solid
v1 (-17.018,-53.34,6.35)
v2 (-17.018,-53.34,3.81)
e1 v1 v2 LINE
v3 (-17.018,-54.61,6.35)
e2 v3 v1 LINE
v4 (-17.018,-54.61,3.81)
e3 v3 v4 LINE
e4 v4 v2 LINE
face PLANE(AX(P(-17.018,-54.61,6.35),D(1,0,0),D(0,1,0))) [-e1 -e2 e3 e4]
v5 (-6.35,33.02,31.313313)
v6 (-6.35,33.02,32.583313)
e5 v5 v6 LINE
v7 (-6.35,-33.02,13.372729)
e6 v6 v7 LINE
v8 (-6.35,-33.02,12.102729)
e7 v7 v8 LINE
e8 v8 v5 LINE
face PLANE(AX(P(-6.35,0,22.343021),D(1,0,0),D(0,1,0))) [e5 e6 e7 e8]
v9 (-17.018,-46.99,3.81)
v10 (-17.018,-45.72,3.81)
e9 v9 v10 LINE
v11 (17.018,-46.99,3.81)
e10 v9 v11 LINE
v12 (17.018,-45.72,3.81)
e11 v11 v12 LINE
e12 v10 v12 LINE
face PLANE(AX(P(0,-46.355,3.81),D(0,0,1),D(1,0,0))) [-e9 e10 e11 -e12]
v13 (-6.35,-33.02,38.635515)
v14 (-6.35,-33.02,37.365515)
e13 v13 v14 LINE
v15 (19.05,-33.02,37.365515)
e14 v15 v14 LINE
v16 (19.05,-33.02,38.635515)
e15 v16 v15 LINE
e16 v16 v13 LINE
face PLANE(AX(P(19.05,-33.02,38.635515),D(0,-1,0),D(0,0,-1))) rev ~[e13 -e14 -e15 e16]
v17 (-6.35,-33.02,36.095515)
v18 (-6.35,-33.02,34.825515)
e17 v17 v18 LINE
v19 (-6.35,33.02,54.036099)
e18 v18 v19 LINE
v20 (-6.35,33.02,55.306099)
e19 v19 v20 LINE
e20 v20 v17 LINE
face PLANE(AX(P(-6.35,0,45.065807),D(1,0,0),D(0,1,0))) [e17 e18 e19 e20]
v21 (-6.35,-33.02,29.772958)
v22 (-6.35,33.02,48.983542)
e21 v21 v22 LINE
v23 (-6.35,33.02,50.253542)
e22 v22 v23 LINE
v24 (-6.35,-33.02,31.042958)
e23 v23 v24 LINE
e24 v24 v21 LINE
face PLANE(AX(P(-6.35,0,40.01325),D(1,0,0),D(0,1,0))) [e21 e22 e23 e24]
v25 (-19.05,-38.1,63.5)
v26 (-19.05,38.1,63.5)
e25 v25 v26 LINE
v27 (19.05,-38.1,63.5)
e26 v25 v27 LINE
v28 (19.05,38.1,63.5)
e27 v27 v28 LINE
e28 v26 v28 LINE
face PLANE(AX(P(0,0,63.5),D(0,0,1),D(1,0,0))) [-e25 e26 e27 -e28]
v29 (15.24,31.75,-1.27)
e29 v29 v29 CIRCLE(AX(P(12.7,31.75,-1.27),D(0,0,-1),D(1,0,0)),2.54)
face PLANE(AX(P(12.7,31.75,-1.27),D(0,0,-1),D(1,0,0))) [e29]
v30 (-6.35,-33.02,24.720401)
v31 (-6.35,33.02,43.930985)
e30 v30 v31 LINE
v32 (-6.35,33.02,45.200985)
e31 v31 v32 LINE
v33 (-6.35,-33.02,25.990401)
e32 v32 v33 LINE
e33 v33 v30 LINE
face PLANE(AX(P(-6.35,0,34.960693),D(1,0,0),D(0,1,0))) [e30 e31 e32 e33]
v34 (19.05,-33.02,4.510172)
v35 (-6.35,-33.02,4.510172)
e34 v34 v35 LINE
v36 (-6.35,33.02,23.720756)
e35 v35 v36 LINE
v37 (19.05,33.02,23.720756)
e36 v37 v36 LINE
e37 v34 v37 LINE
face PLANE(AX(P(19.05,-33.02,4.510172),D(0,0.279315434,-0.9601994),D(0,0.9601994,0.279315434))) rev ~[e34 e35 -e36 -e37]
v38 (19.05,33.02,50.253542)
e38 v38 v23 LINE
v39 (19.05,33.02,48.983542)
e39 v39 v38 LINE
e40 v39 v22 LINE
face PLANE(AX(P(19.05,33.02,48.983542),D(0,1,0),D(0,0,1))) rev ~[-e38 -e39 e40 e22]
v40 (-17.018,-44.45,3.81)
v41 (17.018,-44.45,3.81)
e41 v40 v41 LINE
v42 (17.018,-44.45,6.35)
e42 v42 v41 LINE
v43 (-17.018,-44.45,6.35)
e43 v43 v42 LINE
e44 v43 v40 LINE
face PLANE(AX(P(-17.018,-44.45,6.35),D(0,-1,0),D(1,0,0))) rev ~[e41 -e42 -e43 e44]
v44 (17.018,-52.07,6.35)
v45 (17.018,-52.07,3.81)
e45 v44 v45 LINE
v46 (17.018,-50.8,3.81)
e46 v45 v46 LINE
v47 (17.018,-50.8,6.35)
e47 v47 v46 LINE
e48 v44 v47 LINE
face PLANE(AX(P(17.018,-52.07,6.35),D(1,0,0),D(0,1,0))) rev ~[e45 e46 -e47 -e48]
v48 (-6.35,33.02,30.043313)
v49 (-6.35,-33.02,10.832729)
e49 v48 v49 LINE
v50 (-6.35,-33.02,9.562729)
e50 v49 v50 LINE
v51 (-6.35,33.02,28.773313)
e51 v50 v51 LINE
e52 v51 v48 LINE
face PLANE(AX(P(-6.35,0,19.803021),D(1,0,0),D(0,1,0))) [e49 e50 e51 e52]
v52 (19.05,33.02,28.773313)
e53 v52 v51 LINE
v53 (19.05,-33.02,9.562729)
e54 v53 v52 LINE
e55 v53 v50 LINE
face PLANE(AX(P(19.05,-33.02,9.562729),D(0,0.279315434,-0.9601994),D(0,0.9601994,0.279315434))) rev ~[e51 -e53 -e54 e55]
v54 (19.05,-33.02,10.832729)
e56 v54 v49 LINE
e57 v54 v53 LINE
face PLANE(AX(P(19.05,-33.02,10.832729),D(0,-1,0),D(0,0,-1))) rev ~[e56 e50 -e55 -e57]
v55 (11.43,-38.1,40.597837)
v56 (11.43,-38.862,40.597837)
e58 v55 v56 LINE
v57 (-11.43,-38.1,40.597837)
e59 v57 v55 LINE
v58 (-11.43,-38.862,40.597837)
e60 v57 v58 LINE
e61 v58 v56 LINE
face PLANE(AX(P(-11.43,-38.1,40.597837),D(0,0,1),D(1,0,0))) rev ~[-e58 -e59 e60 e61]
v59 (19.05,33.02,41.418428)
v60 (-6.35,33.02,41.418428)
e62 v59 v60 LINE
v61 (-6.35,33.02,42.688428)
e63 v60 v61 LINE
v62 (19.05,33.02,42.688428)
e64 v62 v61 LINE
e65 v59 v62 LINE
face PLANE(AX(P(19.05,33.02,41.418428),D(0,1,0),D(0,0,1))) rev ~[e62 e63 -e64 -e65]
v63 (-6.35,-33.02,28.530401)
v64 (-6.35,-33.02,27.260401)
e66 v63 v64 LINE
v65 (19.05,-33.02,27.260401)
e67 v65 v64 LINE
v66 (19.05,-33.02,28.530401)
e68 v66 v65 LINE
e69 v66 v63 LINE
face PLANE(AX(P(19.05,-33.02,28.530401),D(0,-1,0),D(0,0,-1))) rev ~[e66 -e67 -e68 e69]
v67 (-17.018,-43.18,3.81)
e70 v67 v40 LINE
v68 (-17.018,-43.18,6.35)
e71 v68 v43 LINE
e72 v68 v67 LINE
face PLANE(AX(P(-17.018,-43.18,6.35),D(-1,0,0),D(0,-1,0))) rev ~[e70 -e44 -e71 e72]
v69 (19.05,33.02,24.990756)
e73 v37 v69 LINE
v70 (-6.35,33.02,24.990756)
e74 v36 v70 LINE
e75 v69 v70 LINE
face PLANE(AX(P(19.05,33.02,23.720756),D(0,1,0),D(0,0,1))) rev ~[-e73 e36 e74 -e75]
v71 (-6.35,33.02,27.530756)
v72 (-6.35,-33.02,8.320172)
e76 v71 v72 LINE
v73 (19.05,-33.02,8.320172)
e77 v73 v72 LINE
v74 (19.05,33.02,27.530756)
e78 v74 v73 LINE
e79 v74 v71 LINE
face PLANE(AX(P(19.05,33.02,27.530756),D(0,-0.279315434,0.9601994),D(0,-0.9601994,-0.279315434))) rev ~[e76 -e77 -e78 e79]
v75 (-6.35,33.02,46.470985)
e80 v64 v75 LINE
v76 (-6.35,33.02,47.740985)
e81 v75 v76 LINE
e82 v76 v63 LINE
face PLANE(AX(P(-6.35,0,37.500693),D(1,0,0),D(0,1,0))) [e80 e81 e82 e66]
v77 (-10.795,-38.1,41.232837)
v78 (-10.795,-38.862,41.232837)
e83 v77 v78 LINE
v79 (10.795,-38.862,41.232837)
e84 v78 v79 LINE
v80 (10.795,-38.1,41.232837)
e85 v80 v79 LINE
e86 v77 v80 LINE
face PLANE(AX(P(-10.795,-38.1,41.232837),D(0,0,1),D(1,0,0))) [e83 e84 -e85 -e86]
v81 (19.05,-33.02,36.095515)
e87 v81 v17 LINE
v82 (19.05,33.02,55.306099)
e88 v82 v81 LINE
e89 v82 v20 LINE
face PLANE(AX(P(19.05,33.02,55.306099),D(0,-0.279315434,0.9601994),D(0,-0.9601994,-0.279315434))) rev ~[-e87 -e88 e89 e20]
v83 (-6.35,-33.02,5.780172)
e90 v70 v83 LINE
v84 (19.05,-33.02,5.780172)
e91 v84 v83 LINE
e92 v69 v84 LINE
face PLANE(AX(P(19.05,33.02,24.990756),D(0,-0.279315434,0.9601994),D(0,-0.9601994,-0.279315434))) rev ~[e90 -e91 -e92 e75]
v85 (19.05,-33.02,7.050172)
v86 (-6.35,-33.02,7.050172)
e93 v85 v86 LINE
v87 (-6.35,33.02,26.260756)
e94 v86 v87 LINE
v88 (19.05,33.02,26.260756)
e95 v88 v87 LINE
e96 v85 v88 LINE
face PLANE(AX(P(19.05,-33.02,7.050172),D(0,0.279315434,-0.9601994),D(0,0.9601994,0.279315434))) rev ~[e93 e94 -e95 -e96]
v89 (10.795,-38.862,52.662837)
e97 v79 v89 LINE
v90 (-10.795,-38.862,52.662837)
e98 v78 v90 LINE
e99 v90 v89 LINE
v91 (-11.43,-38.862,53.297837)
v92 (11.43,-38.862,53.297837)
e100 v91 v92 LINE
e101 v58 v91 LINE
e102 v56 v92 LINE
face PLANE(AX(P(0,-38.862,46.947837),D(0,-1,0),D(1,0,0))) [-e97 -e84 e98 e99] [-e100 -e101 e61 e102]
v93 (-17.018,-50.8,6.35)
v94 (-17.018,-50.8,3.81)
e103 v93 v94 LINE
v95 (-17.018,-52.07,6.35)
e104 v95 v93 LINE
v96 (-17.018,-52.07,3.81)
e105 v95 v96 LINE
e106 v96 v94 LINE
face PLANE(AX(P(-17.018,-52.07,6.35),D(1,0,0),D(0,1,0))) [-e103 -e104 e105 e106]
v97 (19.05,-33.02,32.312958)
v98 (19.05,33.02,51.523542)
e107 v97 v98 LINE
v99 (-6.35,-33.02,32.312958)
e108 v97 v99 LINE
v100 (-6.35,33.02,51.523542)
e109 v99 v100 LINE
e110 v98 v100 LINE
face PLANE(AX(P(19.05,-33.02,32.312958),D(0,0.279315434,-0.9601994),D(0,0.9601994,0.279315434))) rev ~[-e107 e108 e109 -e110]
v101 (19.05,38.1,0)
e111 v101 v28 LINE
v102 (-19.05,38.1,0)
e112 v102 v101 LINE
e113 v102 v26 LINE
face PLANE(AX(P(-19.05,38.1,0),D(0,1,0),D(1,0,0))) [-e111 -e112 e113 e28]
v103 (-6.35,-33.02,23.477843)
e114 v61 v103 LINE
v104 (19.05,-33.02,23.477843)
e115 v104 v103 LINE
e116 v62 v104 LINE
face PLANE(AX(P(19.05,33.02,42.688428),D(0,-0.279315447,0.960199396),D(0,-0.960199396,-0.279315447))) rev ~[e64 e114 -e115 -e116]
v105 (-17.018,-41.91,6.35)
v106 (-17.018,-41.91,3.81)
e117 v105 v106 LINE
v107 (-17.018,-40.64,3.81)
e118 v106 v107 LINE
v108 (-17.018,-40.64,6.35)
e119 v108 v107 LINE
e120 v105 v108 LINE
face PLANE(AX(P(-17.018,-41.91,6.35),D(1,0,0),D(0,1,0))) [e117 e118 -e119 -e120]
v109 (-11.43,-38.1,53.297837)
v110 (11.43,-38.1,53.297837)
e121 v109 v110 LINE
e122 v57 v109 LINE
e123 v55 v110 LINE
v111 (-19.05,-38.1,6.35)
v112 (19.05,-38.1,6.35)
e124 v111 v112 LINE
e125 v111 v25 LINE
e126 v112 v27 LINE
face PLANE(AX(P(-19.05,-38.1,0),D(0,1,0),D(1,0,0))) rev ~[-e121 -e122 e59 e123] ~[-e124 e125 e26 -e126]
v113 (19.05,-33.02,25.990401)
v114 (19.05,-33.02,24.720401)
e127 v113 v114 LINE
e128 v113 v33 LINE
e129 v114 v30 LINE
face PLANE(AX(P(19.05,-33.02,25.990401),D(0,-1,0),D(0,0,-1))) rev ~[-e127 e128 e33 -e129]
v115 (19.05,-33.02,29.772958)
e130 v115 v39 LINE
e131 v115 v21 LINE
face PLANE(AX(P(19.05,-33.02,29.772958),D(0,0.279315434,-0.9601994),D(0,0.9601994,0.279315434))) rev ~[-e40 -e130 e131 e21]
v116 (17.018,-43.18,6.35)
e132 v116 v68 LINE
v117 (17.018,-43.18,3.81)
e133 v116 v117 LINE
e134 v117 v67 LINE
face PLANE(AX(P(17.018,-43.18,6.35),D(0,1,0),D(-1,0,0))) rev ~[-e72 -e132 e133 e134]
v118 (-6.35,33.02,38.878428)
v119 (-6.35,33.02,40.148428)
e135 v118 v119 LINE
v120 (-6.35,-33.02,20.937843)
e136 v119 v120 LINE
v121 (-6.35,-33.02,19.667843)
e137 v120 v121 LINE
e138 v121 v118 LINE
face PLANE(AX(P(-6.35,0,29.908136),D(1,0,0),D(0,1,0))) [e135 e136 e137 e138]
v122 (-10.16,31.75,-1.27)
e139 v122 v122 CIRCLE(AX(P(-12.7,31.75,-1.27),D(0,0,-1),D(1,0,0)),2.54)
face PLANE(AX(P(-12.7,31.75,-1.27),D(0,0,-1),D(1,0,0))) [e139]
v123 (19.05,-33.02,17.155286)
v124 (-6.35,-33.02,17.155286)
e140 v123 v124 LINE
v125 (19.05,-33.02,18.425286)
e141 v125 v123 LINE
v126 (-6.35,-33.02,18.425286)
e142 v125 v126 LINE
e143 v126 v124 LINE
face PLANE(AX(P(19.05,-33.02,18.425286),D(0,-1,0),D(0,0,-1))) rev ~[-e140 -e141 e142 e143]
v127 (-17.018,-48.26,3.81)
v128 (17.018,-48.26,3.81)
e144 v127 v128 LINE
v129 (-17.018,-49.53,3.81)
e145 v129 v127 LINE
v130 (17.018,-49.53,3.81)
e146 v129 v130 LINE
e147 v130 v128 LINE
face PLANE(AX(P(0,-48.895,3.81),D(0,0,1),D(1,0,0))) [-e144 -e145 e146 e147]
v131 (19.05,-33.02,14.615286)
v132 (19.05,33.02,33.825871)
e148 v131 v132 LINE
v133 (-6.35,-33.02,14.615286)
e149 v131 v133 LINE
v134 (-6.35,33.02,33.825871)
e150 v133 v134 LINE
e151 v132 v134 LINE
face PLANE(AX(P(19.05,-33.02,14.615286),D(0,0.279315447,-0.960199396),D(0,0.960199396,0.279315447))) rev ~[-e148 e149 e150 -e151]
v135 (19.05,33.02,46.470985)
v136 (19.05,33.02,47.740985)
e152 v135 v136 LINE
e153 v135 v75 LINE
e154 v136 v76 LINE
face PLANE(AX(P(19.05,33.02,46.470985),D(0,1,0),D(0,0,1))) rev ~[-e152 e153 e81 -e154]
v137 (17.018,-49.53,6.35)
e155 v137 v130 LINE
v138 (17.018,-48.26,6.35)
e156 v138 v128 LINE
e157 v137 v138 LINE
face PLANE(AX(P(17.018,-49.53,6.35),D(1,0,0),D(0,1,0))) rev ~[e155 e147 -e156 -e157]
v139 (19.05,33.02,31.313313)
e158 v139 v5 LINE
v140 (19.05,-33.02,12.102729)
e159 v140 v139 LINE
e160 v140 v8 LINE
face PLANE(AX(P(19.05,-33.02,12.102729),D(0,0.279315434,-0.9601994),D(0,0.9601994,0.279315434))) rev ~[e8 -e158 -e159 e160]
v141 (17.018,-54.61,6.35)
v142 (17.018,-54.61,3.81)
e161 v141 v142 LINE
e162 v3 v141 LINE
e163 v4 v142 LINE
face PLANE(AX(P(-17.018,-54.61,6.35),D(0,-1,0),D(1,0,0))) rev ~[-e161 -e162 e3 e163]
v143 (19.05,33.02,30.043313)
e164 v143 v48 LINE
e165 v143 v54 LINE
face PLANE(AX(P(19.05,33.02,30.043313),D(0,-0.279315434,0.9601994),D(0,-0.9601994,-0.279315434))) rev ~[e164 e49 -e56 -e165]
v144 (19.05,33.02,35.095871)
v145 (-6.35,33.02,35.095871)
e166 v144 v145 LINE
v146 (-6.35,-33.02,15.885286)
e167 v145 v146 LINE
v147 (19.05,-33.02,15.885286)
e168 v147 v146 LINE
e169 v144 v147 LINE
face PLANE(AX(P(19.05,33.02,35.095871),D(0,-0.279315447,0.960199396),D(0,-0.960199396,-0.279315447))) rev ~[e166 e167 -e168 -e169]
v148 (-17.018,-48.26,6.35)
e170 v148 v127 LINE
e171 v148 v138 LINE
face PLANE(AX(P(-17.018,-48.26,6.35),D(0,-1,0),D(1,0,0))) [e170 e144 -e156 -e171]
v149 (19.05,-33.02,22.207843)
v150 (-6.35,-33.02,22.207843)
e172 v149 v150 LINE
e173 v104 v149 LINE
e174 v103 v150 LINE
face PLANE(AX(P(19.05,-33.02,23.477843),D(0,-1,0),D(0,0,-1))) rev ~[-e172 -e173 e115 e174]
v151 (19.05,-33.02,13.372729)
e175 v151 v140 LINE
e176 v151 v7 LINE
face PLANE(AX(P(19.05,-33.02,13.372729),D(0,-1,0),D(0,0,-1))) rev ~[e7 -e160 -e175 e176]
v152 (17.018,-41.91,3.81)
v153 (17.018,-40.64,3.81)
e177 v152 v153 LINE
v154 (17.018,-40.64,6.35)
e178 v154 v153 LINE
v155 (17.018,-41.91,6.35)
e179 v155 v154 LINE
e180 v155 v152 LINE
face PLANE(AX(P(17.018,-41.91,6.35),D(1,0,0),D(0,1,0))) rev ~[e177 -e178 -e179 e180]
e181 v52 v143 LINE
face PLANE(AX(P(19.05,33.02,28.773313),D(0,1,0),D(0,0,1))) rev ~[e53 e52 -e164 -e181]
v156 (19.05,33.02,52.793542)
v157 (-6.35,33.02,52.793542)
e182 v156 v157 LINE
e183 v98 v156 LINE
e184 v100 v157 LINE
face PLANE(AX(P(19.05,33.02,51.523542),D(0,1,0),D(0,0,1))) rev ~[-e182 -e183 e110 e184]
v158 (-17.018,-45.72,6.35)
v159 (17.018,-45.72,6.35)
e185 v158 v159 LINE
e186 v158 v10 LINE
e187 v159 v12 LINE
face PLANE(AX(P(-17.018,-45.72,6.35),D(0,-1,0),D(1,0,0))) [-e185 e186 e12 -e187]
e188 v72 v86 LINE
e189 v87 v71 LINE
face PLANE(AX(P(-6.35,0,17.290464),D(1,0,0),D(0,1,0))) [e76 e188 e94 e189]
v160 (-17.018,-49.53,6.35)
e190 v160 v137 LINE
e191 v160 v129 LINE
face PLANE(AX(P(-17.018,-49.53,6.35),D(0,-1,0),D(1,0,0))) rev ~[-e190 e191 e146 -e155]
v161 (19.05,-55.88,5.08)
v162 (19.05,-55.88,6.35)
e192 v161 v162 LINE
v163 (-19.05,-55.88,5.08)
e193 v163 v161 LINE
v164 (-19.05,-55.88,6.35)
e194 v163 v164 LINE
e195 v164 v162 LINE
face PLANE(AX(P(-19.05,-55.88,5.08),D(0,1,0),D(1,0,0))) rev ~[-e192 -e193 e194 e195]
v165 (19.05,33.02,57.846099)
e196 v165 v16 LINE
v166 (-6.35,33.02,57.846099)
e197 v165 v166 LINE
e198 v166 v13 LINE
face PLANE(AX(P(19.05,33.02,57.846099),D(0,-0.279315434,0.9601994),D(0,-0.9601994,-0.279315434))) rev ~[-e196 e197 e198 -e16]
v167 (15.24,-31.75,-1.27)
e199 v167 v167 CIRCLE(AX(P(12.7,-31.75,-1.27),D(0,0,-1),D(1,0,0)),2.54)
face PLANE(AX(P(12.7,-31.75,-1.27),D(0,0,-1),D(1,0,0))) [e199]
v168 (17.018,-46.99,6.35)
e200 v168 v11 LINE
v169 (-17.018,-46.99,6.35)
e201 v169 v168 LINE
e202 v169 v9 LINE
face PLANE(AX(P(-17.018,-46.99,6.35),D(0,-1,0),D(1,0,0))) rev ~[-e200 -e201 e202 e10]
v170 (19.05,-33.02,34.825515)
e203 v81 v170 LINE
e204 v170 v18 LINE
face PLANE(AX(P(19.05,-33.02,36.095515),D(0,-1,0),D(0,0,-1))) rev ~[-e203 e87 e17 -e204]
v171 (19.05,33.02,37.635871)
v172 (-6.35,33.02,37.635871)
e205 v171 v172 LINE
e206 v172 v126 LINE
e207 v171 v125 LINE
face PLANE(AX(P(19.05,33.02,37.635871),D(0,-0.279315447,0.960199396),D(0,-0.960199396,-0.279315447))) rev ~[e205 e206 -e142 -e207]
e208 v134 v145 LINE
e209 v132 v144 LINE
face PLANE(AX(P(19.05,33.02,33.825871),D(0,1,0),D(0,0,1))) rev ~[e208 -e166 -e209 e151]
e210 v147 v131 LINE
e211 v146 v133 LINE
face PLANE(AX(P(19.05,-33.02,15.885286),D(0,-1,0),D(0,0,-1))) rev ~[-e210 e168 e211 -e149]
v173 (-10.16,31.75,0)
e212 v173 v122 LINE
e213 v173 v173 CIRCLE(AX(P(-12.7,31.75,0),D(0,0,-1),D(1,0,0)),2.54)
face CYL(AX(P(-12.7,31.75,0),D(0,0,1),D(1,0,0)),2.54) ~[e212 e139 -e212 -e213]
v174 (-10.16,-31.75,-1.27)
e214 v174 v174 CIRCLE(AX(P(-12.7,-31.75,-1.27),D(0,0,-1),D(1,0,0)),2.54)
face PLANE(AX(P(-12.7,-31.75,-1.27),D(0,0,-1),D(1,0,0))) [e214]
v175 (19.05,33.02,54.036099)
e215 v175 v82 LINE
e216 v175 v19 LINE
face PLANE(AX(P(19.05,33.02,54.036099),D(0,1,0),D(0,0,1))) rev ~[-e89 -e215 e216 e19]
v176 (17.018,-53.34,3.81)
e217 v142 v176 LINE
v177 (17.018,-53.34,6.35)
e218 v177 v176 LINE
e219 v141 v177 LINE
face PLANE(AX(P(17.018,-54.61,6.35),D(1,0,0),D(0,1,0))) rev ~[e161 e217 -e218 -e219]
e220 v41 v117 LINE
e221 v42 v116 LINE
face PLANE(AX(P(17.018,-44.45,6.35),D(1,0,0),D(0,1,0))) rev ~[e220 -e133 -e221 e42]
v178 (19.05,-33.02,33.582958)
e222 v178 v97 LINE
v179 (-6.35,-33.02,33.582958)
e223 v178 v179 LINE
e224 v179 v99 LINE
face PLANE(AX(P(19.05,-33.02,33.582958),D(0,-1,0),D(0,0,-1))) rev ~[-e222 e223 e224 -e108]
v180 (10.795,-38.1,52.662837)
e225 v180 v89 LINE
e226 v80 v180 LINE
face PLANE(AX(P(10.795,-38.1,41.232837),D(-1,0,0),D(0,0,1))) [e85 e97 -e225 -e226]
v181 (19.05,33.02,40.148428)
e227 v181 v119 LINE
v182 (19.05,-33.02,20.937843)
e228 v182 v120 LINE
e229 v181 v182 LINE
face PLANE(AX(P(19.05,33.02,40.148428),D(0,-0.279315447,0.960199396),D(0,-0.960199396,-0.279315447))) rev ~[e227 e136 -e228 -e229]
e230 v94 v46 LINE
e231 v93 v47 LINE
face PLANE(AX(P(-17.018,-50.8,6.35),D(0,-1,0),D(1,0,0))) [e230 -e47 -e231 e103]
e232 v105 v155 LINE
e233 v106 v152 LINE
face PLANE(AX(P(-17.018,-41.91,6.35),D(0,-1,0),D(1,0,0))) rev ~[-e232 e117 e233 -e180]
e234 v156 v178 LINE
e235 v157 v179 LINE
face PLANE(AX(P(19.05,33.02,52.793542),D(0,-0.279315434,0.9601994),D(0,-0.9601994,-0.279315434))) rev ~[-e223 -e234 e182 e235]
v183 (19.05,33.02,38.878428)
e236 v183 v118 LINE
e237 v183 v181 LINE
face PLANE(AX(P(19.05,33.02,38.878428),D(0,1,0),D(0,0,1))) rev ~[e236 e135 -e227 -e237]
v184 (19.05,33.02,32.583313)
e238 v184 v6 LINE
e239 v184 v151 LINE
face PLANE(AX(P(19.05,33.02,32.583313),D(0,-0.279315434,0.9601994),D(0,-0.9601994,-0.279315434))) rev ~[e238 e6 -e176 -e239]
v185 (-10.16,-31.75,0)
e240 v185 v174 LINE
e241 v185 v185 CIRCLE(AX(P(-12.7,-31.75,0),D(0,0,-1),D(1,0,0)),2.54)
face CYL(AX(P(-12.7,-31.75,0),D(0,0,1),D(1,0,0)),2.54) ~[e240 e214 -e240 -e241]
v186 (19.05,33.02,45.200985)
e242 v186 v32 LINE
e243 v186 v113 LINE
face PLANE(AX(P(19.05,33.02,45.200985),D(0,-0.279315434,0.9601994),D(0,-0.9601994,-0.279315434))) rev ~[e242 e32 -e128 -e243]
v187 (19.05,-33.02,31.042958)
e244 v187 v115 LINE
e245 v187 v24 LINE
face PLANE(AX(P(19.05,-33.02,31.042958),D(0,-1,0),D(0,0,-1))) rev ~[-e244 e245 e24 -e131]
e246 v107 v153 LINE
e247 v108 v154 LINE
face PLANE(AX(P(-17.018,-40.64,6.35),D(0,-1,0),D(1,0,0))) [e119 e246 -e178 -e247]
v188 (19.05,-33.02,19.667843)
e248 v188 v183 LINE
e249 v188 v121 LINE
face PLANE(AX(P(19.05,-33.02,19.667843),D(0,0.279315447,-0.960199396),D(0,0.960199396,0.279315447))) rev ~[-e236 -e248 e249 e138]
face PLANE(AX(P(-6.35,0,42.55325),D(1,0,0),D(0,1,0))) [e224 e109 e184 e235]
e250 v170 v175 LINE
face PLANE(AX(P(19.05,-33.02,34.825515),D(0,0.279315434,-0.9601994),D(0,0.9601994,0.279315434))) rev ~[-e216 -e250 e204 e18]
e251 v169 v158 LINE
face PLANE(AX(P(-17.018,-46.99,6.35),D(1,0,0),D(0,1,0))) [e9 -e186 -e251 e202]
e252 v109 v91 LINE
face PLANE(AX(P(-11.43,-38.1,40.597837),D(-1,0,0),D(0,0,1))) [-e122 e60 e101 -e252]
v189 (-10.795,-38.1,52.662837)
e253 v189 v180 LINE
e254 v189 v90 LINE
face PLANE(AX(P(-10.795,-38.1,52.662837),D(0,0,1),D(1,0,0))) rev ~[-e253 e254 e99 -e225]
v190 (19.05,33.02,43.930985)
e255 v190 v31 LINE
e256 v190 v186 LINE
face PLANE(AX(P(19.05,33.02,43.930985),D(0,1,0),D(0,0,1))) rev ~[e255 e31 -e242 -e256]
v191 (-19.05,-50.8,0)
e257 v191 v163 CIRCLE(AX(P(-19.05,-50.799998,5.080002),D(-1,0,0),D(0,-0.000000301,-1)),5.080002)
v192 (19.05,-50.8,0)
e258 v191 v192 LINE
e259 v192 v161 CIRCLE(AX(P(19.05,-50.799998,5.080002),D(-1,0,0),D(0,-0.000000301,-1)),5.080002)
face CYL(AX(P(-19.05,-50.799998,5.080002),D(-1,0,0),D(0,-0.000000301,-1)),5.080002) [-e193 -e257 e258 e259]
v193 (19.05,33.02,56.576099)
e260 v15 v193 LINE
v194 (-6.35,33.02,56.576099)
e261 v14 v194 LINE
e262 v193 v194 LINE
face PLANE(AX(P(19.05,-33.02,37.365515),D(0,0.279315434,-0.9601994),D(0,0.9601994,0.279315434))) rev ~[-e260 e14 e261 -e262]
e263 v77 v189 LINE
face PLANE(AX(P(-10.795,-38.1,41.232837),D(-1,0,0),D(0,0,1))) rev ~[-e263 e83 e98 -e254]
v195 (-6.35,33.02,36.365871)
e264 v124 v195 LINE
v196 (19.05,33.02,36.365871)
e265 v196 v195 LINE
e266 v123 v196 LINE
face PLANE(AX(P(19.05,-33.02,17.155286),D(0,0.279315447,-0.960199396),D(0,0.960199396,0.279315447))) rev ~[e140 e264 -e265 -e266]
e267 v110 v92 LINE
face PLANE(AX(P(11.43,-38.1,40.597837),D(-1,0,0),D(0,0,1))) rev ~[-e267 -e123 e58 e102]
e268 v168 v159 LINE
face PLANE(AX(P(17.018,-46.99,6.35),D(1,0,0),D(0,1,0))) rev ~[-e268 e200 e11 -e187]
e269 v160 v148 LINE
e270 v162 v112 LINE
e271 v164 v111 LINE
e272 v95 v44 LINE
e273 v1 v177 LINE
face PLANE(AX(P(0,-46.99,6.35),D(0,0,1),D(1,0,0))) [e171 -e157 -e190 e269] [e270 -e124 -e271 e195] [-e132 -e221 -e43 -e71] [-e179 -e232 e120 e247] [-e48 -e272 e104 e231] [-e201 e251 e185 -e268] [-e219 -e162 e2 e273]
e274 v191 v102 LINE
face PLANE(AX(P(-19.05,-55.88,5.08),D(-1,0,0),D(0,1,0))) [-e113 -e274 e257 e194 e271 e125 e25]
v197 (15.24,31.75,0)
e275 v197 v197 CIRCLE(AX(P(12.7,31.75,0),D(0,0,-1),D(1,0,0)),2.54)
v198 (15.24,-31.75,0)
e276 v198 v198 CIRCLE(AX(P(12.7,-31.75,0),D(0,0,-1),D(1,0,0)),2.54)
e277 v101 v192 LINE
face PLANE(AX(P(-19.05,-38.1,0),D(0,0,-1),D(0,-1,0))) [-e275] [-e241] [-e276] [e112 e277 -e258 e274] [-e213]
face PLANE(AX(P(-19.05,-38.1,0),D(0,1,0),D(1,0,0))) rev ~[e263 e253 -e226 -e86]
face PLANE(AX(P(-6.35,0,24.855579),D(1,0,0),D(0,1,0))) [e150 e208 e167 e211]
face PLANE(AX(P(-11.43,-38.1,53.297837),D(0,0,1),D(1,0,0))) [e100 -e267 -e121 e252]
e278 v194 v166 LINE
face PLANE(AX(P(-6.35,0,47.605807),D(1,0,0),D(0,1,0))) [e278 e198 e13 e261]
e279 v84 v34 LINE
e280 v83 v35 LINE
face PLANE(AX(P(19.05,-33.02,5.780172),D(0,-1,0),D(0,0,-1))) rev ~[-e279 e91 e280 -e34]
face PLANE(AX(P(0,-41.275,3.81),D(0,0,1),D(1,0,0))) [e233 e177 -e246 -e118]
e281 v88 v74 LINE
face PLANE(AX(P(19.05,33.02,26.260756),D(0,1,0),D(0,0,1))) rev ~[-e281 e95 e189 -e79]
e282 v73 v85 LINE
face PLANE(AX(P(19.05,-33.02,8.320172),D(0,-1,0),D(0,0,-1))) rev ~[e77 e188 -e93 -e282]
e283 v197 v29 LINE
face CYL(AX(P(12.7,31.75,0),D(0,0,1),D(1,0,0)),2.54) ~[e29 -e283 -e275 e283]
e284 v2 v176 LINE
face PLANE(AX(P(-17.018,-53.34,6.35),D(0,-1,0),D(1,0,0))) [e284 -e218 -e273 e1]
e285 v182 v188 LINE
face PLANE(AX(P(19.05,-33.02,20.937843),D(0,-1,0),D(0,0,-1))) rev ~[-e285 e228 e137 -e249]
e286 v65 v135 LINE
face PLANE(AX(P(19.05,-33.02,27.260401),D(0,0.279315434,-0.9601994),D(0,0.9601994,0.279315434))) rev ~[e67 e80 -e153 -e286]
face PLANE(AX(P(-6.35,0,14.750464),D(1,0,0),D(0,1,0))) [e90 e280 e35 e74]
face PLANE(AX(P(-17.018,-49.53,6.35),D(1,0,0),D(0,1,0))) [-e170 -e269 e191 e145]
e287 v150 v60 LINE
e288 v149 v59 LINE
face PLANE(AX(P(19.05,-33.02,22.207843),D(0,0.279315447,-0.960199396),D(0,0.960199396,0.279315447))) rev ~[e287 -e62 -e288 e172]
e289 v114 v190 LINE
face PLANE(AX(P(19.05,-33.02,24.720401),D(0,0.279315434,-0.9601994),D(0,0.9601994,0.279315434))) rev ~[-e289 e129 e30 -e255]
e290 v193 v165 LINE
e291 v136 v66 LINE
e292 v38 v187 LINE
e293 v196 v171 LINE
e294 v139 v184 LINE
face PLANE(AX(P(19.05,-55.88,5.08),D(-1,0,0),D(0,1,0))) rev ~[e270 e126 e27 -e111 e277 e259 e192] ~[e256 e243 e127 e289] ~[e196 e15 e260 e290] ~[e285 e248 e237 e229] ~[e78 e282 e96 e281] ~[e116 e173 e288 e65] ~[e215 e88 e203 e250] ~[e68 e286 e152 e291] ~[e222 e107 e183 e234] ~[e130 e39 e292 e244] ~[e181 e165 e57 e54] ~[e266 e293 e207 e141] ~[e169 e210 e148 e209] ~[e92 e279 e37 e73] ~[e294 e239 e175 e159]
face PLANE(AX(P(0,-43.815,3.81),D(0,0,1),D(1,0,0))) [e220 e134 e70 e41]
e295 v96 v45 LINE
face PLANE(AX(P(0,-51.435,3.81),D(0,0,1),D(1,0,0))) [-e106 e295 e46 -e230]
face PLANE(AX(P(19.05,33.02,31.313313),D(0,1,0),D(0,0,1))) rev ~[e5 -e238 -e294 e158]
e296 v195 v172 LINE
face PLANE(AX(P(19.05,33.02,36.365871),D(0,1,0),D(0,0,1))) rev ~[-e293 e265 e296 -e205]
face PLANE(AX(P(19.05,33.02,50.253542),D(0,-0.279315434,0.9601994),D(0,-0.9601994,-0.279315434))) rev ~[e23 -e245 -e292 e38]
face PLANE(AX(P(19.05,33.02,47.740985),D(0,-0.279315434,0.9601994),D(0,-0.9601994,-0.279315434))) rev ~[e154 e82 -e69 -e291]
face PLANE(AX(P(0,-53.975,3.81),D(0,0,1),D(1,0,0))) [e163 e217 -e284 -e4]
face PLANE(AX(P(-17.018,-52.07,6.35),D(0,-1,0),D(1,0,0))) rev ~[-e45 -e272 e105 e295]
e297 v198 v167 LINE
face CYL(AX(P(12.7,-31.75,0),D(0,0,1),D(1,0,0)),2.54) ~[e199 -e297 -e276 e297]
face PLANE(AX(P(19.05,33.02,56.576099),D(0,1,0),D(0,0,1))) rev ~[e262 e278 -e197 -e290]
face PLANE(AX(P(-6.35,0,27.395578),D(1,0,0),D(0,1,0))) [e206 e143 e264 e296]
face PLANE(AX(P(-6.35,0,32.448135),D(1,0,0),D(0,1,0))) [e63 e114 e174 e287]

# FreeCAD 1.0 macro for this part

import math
import FreeCAD as App
import Part
import Sketcher
Q = App.Units.Quantity

doc = App.newDocument("Part")
body = doc.addObject("PartDesign::Body", "Body")

# Sketch on XY plane
sketch1 = body.newObject("Sketcher::SketchObject", "Sketch")
sketch1.AttachmentSupport = (doc.getObject("XY_Plane"), [""])
sketch1.MapMode = "FlatFace"
sketch1.addGeometry([
    Part.LineSegment(App.Vector(-19, 38, 0), App.Vector(-19, -38, 0)),
    Part.LineSegment(App.Vector(-19, -38, 0), App.Vector(19, -38, 0)),
    Part.LineSegment(App.Vector(19, -38, 0), App.Vector(19, 38, 0)),
    Part.LineSegment(App.Vector(19, 38, 0), App.Vector(-19, 38, 0)),
], False)
sketch1.addConstraint([
    Sketcher.Constraint("Coincident", 0, 2, 1, 1),
    Sketcher.Constraint("Coincident", 1, 2, 2, 1),
    Sketcher.Constraint("Coincident", 2, 2, 3, 1),
    Sketcher.Constraint("Coincident", 3, 2, 0, 1),
    Sketcher.Constraint("Vertical", 0),
    Sketcher.Constraint("Horizontal", 1),
    Sketcher.Constraint("Vertical", 2),
    Sketcher.Constraint("Horizontal", 3),
    Sketcher.Constraint("Symmetric", 0, 2, 2, 2, -1, 1),
    Sketcher.Constraint("DistanceY", 0, 2, 0, 1, Q("3 in")),
    Sketcher.Constraint("DistanceX", 1, 1, 1, 2, Q("1.5 in")),
])
pad1 = body.newObject("PartDesign::Pad", "Pad")
pad1.Profile = sketch1
pad1.Length = Q("2.5 in")

# Sketch on XY plane
sketch2 = body.newObject("Sketcher::SketchObject", "Sketch001")
sketch2.AttachmentSupport = (doc.getObject("XY_Plane"), [""])
sketch2.MapMode = "FlatFace"
sketch2.addGeometry([
    Part.Circle(App.Vector(-12.7, -31.8, 0), App.Vector(0, 0, 1), 2.5),
    Part.Circle(App.Vector(12.7, -31.8, 0), App.Vector(0, 0, 1), 2.5),
    Part.Circle(App.Vector(-12.7, 31.8, 0), App.Vector(0, 0, 1), 2.5),
    Part.Circle(App.Vector(12.7, 31.8, 0), App.Vector(0, 0, 1), 2.5),
], False)
sketch2.addConstraint([
    Sketcher.Constraint("Equal", 0, 1),
    Sketcher.Constraint("Equal", 1, 2),
    Sketcher.Constraint("Equal", 2, 3),
    Sketcher.Constraint("Symmetric", 1, 3, 2, 3, -1, 1),
    Sketcher.Constraint("Symmetric", 0, 3, 3, 3, -1, 1),
    Sketcher.Constraint("Symmetric", 0, 3, 1, 3, -2),
    Sketcher.Constraint("Diameter", 0, Q("0.2 in")),
    Sketcher.Constraint("DistanceX", 0, 3, 1, 3, Q("1 in")),
    Sketcher.Constraint("DistanceY", 0, 3, 2, 3, Q("2.5 in")),
])
pad2 = body.newObject("PartDesign::Pad", "Pad001")
pad2.Profile = sketch2
pad2.Length = Q("0.05 in")
pad2.Reversed = True

# Sketch on YZ plane
sketch3 = body.newObject("Sketcher::SketchObject", "Sketch002")
sketch3.AttachmentSupport = (doc.getObject("YZ_Plane"), [""])
sketch3.MapMode = "FlatFace"
sketch3.AttachmentOffset = App.Placement(App.Vector(0, 0, 0.75 * 25.4), App.Rotation())
sketch3.addGeometry([
    Part.LineSegment(App.Vector(33, 57.8, 0), App.Vector(-33, 38.6, 0)),  # 0
    Part.LineSegment(App.Vector(-33, 38.6, 0), App.Vector(-33, 37.4, 0)),  # 1
    Part.LineSegment(App.Vector(-33, 37.4, 0), App.Vector(33, 56.6, 0)),  # 2
    Part.LineSegment(App.Vector(33, 56.6, 0), App.Vector(33, 57.8, 0)),  # 3
    Part.LineSegment(App.Vector(-33, 26, 0), App.Vector(-33, 24.7, 0)),  # 4
    Part.LineSegment(App.Vector(-33, 24.7, 0), App.Vector(33, 43.9, 0)),  # 5
    Part.LineSegment(App.Vector(33, 43.9, 0), App.Vector(33, 45.2, 0)),  # 6
    Part.LineSegment(App.Vector(33, 45.2, 0), App.Vector(-33, 26, 0)),  # 7
    Part.LineSegment(App.Vector(-33, 28.5, 0), App.Vector(-33, 27.3, 0)),  # 8
    Part.LineSegment(App.Vector(-33, 27.3, 0), App.Vector(33, 46.5, 0)),  # 9
    Part.LineSegment(App.Vector(33, 46.5, 0), App.Vector(33, 47.7, 0)),  # 10
    Part.LineSegment(App.Vector(33, 47.7, 0), App.Vector(-33, 28.5, 0)),  # 11
    Part.LineSegment(App.Vector(-33, 31, 0), App.Vector(-33, 29.8, 0)),  # 12
    Part.LineSegment(App.Vector(-33, 29.8, 0), App.Vector(33, 49, 0)),  # 13
    Part.LineSegment(App.Vector(33, 49, 0), App.Vector(33, 50.3, 0)),  # 14
    Part.LineSegment(App.Vector(33, 50.3, 0), App.Vector(-33, 31, 0)),  # 15
    Part.LineSegment(App.Vector(-33, 33.6, 0), App.Vector(-33, 32.3, 0)),  # 16
    Part.LineSegment(App.Vector(-33, 32.3, 0), App.Vector(33, 51.5, 0)),  # 17
    Part.LineSegment(App.Vector(33, 51.5, 0), App.Vector(33, 52.8, 0)),  # 18
    Part.LineSegment(App.Vector(33, 52.8, 0), App.Vector(-33, 33.6, 0)),  # 19
    Part.LineSegment(App.Vector(-33, 36.1, 0), App.Vector(-33, 34.8, 0)),  # 20
    Part.LineSegment(App.Vector(-33, 34.8, 0), App.Vector(33, 54, 0)),  # 21
    Part.LineSegment(App.Vector(33, 54, 0), App.Vector(33, 55.3, 0)),  # 22
    Part.LineSegment(App.Vector(33, 55.3, 0), App.Vector(-33, 36.1, 0)),  # 23
    Part.LineSegment(App.Vector(33, 42.7, 0), App.Vector(-33, 23.5, 0)),  # 24
    Part.LineSegment(App.Vector(-33, 23.5, 0), App.Vector(-33, 22.2, 0)),  # 25
    Part.LineSegment(App.Vector(-33, 22.2, 0), App.Vector(33, 41.4, 0)),  # 26
    Part.LineSegment(App.Vector(33, 41.4, 0), App.Vector(33, 42.7, 0)),  # 27
    Part.LineSegment(App.Vector(-33, 20.9, 0), App.Vector(-33, 19.7, 0)),  # 28
    Part.LineSegment(App.Vector(-33, 19.7, 0), App.Vector(33, 38.9, 0)),  # 29
    Part.LineSegment(App.Vector(33, 38.9, 0), App.Vector(33, 40.1, 0)),  # 30
    Part.LineSegment(App.Vector(33, 40.1, 0), App.Vector(-33, 20.9, 0)),  # 31
    Part.LineSegment(App.Vector(-33, 15.9, 0), App.Vector(-33, 14.6, 0)),  # 32
    Part.LineSegment(App.Vector(-33, 14.6, 0), App.Vector(33, 33.8, 0)),  # 33
    Part.LineSegment(App.Vector(33, 33.8, 0), App.Vector(33, 35.1, 0)),  # 34
    Part.LineSegment(App.Vector(33, 35.1, 0), App.Vector(-33, 15.9, 0)),  # 35
    Part.LineSegment(App.Vector(-33, 18.4, 0), App.Vector(-33, 17.2, 0)),  # 36
    Part.LineSegment(App.Vector(-33, 17.2, 0), App.Vector(33, 36.4, 0)),  # 37
    Part.LineSegment(App.Vector(33, 36.4, 0), App.Vector(33, 37.6, 0)),  # 38
    Part.LineSegment(App.Vector(33, 37.6, 0), App.Vector(-33, 18.4, 0)),  # 39
    Part.LineSegment(App.Vector(-33, 10.8, 0), App.Vector(-33, 9.6, 0)),  # 40
    Part.LineSegment(App.Vector(-33, 9.6, 0), App.Vector(33, 28.8, 0)),  # 41
    Part.LineSegment(App.Vector(33, 28.8, 0), App.Vector(33, 30, 0)),  # 42
    Part.LineSegment(App.Vector(33, 30, 0), App.Vector(-33, 10.8, 0)),  # 43
    Part.LineSegment(App.Vector(-33, 13.4, 0), App.Vector(-33, 12.1, 0)),  # 44
    Part.LineSegment(App.Vector(-33, 12.1, 0), App.Vector(33, 31.3, 0)),  # 45
    Part.LineSegment(App.Vector(33, 31.3, 0), App.Vector(33, 32.6, 0)),  # 46
    Part.LineSegment(App.Vector(33, 32.6, 0), App.Vector(-33, 13.4, 0)),  # 47
    Part.LineSegment(App.Vector(-33, 5.8, 0), App.Vector(-33, 4.5, 0)),  # 48
    Part.LineSegment(App.Vector(-33, 4.5, 0), App.Vector(33, 23.7, 0)),  # 49
    Part.LineSegment(App.Vector(33, 23.7, 0), App.Vector(33, 25, 0)),  # 50
    Part.LineSegment(App.Vector(33, 25, 0), App.Vector(-33, 5.8, 0)),  # 51
    Part.LineSegment(App.Vector(-33, 8.3, 0), App.Vector(-33, 7.1, 0)),  # 52
    Part.LineSegment(App.Vector(-33, 7.1, 0), App.Vector(33, 26.3, 0)),  # 53
    Part.LineSegment(App.Vector(33, 26.3, 0), App.Vector(33, 27.5, 0)),  # 54
    Part.LineSegment(App.Vector(33, 27.5, 0), App.Vector(-33, 8.3, 0)),  # 55
], False)
sketch3.addConstraint([
    Sketcher.Constraint("Coincident", 0, 2, 1, 1),
    Sketcher.Constraint("Coincident", 1, 2, 2, 1),
    Sketcher.Constraint("Coincident", 2, 2, 3, 1),
    Sketcher.Constraint("Coincident", 3, 2, 0, 1),
    Sketcher.Constraint("Coincident", 4, 2, 5, 1),
    Sketcher.Constraint("Coincident", 5, 2, 6, 1),
    Sketcher.Constraint("Coincident", 6, 2, 7, 1),
    Sketcher.Constraint("Coincident", 7, 2, 4, 1),
    Sketcher.Constraint("Coincident", 8, 2, 9, 1),
    Sketcher.Constraint("Coincident", 9, 2, 10, 1),
    Sketcher.Constraint("Coincident", 10, 2, 11, 1),
    Sketcher.Constraint("Coincident", 11, 2, 8, 1),
    Sketcher.Constraint("Coincident", 12, 2, 13, 1),
    Sketcher.Constraint("Coincident", 13, 2, 14, 1),
    Sketcher.Constraint("Coincident", 14, 2, 15, 1),
    Sketcher.Constraint("Coincident", 15, 2, 12, 1),
    Sketcher.Constraint("Coincident", 16, 2, 17, 1),
    Sketcher.Constraint("Coincident", 17, 2, 18, 1),
    Sketcher.Constraint("Coincident", 18, 2, 19, 1),
    Sketcher.Constraint("Coincident", 19, 2, 16, 1),
    Sketcher.Constraint("Coincident", 20, 2, 21, 1),
    Sketcher.Constraint("Coincident", 21, 2, 22, 1),
    Sketcher.Constraint("Coincident", 22, 2, 23, 1),
    Sketcher.Constraint("Coincident", 23, 2, 20, 1),
    Sketcher.Constraint("Coincident", 24, 2, 25, 1),
    Sketcher.Constraint("Coincident", 25, 2, 26, 1),
    Sketcher.Constraint("Coincident", 26, 2, 27, 1),
    Sketcher.Constraint("Coincident", 27, 2, 24, 1),
    Sketcher.Constraint("Coincident", 28, 2, 29, 1),
    Sketcher.Constraint("Coincident", 29, 2, 30, 1),
    Sketcher.Constraint("Coincident", 30, 2, 31, 1),
    Sketcher.Constraint("Coincident", 31, 2, 28, 1),
    Sketcher.Constraint("Coincident", 32, 2, 33, 1),
    Sketcher.Constraint("Coincident", 33, 2, 34, 1),
    Sketcher.Constraint("Coincident", 34, 2, 35, 1),
    Sketcher.Constraint("Coincident", 35, 2, 32, 1),
    Sketcher.Constraint("Coincident", 36, 2, 37, 1),
    Sketcher.Constraint("Coincident", 37, 2, 38, 1),
    Sketcher.Constraint("Coincident", 38, 2, 39, 1),
    Sketcher.Constraint("Coincident", 39, 2, 36, 1),
    Sketcher.Constraint("Coincident", 40, 2, 41, 1),
    Sketcher.Constraint("Coincident", 41, 2, 42, 1),
    Sketcher.Constraint("Coincident", 42, 2, 43, 1),
    Sketcher.Constraint("Coincident", 43, 2, 40, 1),
    Sketcher.Constraint("Coincident", 44, 2, 45, 1),
    Sketcher.Constraint("Coincident", 45, 2, 46, 1),
    Sketcher.Constraint("Coincident", 46, 2, 47, 1),
    Sketcher.Constraint("Coincident", 47, 2, 44, 1),
    Sketcher.Constraint("Coincident", 48, 2, 49, 1),
    Sketcher.Constraint("Coincident", 49, 2, 50, 1),
    Sketcher.Constraint("Coincident", 50, 2, 51, 1),
    Sketcher.Constraint("Coincident", 51, 2, 48, 1),
    Sketcher.Constraint("Coincident", 52, 2, 53, 1),
    Sketcher.Constraint("Coincident", 53, 2, 54, 1),
    Sketcher.Constraint("Coincident", 54, 2, 55, 1),
    Sketcher.Constraint("Coincident", 55, 2, 52, 1),
    Sketcher.Constraint("Vertical", 1),
    Sketcher.Constraint("Vertical", 3),
    Sketcher.Constraint("Vertical", 4),
    Sketcher.Constraint("Vertical", 6),
    Sketcher.Constraint("Vertical", 8),
    Sketcher.Constraint("Vertical", 10),
    Sketcher.Constraint("Vertical", 12),
    Sketcher.Constraint("Vertical", 14),
    Sketcher.Constraint("Vertical", 16),
    Sketcher.Constraint("Vertical", 18),
    Sketcher.Constraint("Vertical", 20),
    Sketcher.Constraint("Vertical", 22),
    Sketcher.Constraint("Vertical", 25),
    Sketcher.Constraint("Vertical", 27),
    Sketcher.Constraint("Vertical", 28),
    Sketcher.Constraint("Vertical", 30),
    Sketcher.Constraint("Vertical", 32),
    Sketcher.Constraint("Vertical", 34),
    Sketcher.Constraint("Vertical", 36),
    Sketcher.Constraint("Vertical", 38),
    Sketcher.Constraint("Vertical", 40),
    Sketcher.Constraint("Vertical", 42),
    Sketcher.Constraint("Vertical", 44),
    Sketcher.Constraint("Vertical", 46),
    Sketcher.Constraint("Vertical", 48),
    Sketcher.Constraint("Vertical", 50),
    Sketcher.Constraint("Vertical", 52),
    Sketcher.Constraint("Vertical", 54),
    Sketcher.Constraint("Parallel", 0, 2),
    Sketcher.Constraint("Parallel", 2, 5),
    Sketcher.Constraint("Parallel", 5, 7),
    Sketcher.Constraint("Parallel", 7, 9),
    Sketcher.Constraint("Parallel", 9, 11),
    Sketcher.Constraint("Parallel", 11, 13),
    Sketcher.Constraint("Parallel", 13, 15),
    Sketcher.Constraint("Parallel", 15, 17),
    Sketcher.Constraint("Parallel", 17, 19),
    Sketcher.Constraint("Parallel", 19, 21),
    Sketcher.Constraint("Parallel", 21, 23),
    Sketcher.Constraint("Parallel", 23, 24),
    Sketcher.Constraint("Parallel", 24, 26),
    Sketcher.Constraint("Parallel", 26, 29),
    Sketcher.Constraint("Parallel", 29, 31),
    Sketcher.Constraint("Parallel", 31, 33),
    Sketcher.Constraint("Parallel", 33, 35),
    Sketcher.Constraint("Parallel", 35, 37),
    Sketcher.Constraint("Parallel", 37, 39),
    Sketcher.Constraint("Parallel", 39, 41),
    Sketcher.Constraint("Parallel", 41, 43),
    Sketcher.Constraint("Parallel", 43, 45),
    Sketcher.Constraint("Parallel", 45, 47),
    Sketcher.Constraint("Parallel", 47, 49),
    Sketcher.Constraint("Parallel", 49, 51),
    Sketcher.Constraint("Parallel", 51, 53),
    Sketcher.Constraint("Parallel", 53, 55),
    Sketcher.Constraint("Vertical", 1, 2, 4, 2),
    Sketcher.Constraint("Vertical", 3, 2, 5, 2),
    Sketcher.Constraint("Vertical", 7, 2, 8, 2),
    Sketcher.Constraint("Vertical", 6, 2, 9, 2),
    Sketcher.Constraint("Vertical", 11, 2, 12, 2),
    Sketcher.Constraint("Vertical", 10, 2, 13, 2),
    Sketcher.Constraint("Vertical", 15, 2, 16, 2),
    Sketcher.Constraint("Vertical", 14, 2, 17, 2),
    Sketcher.Constraint("Vertical", 19, 2, 20, 2),
    Sketcher.Constraint("Vertical", 18, 2, 21, 2),
    Sketcher.Constraint("Vertical", 23, 2, 24, 2),
    Sketcher.Constraint("Vertical", 22, 2, 26, 2),
    Sketcher.Constraint("Vertical", 25, 2, 28, 2),
    Sketcher.Constraint("Vertical", 27, 2, 29, 2),
    Sketcher.Constraint("Vertical", 31, 2, 32, 2),
    Sketcher.Constraint("Vertical", 30, 2, 33, 2),
    Sketcher.Constraint("Vertical", 35, 2, 36, 2),
    Sketcher.Constraint("Vertical", 34, 2, 37, 2),
    Sketcher.Constraint("Vertical", 39, 2, 40, 2),
    Sketcher.Constraint("Vertical", 38, 2, 41, 2),
    Sketcher.Constraint("Vertical", 43, 2, 44, 2),
    Sketcher.Constraint("Vertical", 42, 2, 45, 2),
    Sketcher.Constraint("Vertical", 47, 2, 48, 2),
    Sketcher.Constraint("Vertical", 46, 2, 49, 2),
    Sketcher.Constraint("Vertical", 51, 2, 52, 2),
    Sketcher.Constraint("Vertical", 50, 2, 53, 2),
    Sketcher.Constraint("Equal", 3, 4),
    Sketcher.Constraint("Equal", 6, 8),
    Sketcher.Constraint("Equal", 10, 12),
    Sketcher.Constraint("Equal", 14, 16),
    Sketcher.Constraint("Equal", 18, 20),
    Sketcher.Constraint("Equal", 22, 25),
    Sketcher.Constraint("Equal", 27, 28),
    Sketcher.Constraint("Equal", 30, 32),
    Sketcher.Constraint("Equal", 34, 36),
    Sketcher.Constraint("Equal", 38, 40),
    Sketcher.Constraint("Equal", 42, 44),
    Sketcher.Constraint("Equal", 46, 48),
    Sketcher.Constraint("Equal", 50, 52),
    Sketcher.Constraint("DistanceY", 1, 2, 1, 1, Q("0.05 in")),
    Sketcher.Constraint("DistanceX", 0, 2, -1, 1, Q("1.3 in")),
    Sketcher.Constraint("DistanceX", -1, 1, 2, 2, Q("1.3 in")),
    Sketcher.Constraint("DistanceY", 4, 2, 8, 2, Q("0.1 in")),
    Sketcher.Constraint("DistanceY", 12, 2, 16, 2, Q("0.1 in")),
    Sketcher.Constraint("DistanceY", 20, 2, 1, 2, Q("0.1 in")),
    Sketcher.Constraint("DistanceY", 28, 2, 25, 2, Q("0.1 in")),
    Sketcher.Constraint("DistanceY", 32, 2, 36, 2, Q("0.1 in")),
    Sketcher.Constraint("DistanceY", 40, 2, 44, 2, Q("0.1 in")),
    Sketcher.Constraint("DistanceY", 48, 2, 52, 2, Q("0.1 in")),
    Sketcher.Constraint("DistanceY", -1, 1, 2, 2, 56.576099),
    Sketcher.Constraint("DistanceY", -1, 1, 4, 2, 24.720401),
    Sketcher.Constraint("Distance", 0, 68.777381),
    Sketcher.Constraint("DistanceY", -1, 1, 16, 2, 32.312958),
    Sketcher.Constraint("DistanceY", -1, 1, 27, 2, 42.688428),
    Sketcher.Constraint("DistanceY", -1, 1, 33, 2, 33.825871),
    Sketcher.Constraint("DistanceY", -1, 1, 40, 2, 9.562729),
    Sketcher.Constraint("DistanceY", -1, 1, 48, 2, 4.510172),
])
pocket1 = body.newObject("PartDesign::Pocket", "Pocket")
pocket1.Profile = sketch3
pocket1.Length = Q("1 in")

# Sketch on YZ plane
sketch4 = body.newObject("Sketcher::SketchObject", "Sketch003")
sketch4.AttachmentSupport = (doc.getObject("YZ_Plane"), [""])
sketch4.MapMode = "FlatFace"
sketch4.AttachmentOffset = App.Placement(App.Vector(0, 0, -0.75 * 25.4), App.Rotation())
sketch4.addGeometry([
    Part.LineSegment(App.Vector(-38, 5, 0), App.Vector(-38, 0, 0)),
    Part.LineSegment(App.Vector(-38, 0, 0), App.Vector(-51, 0, 0)),
    Part.ArcOfCircle(Part.Circle(App.Vector(-51, 5, 0), App.Vector(0, 0, 1), 5), math.radians(-180), math.radians(-90)),
    Part.LineSegment(App.Vector(-56, 5, 0), App.Vector(-38, 5, 0)),
], False)
sketch4.addConstraint([
    Sketcher.Constraint("Coincident", 0, 2, 1, 1),
    Sketcher.Constraint("Tangent", 1, 2, 2, 2),
    Sketcher.Constraint("Coincident", 2, 1, 3, 1),
    Sketcher.Constraint("Coincident", 3, 2, 0, 1),
    Sketcher.Constraint("Vertical", 0),
    Sketcher.Constraint("Horizontal", 1),
    Sketcher.Constraint("Horizontal", 3),
    Sketcher.Constraint("PointOnObject", 0, 2, -1),
    Sketcher.Constraint("Radius", 2, Q("0.2000001 in")),
    Sketcher.Constraint("DistanceX", 1, 2, 1, 1, Q("0.5 in")),
    Sketcher.Constraint("DistanceY", 0, 2, 0, 1, Q("0.2 in")),
    Sketcher.Constraint("DistanceX", 2, 3, -1, 1, Q("1.9999999 in")),
])
pad3 = body.newObject("PartDesign::Pad", "Pad002")
pad3.Profile = sketch4
pad3.Length = Q("1.5 in")

# Sketch on XY plane
sketch5 = body.newObject("Sketcher::SketchObject", "Sketch004")
sketch5.AttachmentSupport = (doc.getObject("XY_Plane"), [""])
sketch5.MapMode = "FlatFace"
sketch5.AttachmentOffset = App.Placement(App.Vector(0, 0, 0.2 * 25.4), App.Rotation())
sketch5.addGeometry([
    Part.LineSegment(App.Vector(-19, -38, 0), App.Vector(-19, -56, 0)),
    Part.LineSegment(App.Vector(-19, -56, 0), App.Vector(19, -56, 0)),
    Part.LineSegment(App.Vector(19, -56, 0), App.Vector(19, -38, 0)),
    Part.LineSegment(App.Vector(19, -38, 0), App.Vector(-19, -38, 0)),
], False)
sketch5.addConstraint([
    Sketcher.Constraint("Coincident", 0, 2, 1, 1),
    Sketcher.Constraint("Coincident", 1, 2, 2, 1),
    Sketcher.Constraint("Coincident", 2, 2, 3, 1),
    Sketcher.Constraint("Coincident", 3, 2, 0, 1),
    Sketcher.Constraint("Vertical", 0),
    Sketcher.Constraint("Horizontal", 1),
    Sketcher.Constraint("Vertical", 2),
    Sketcher.Constraint("Horizontal", 3),
    Sketcher.Constraint("DistanceX", 1, 1, 1, 2, Q("1.5 in")),
    Sketcher.Constraint("DistanceY", 0, 2, 0, 1, Q("0.7 in")),
    Sketcher.Constraint("DistanceY", 0, 2, -1, 1, Q("2.2 in")),
    Sketcher.Constraint("DistanceX", 0, 2, -1, 1, Q("0.75 in")),
])
pad4 = body.newObject("PartDesign::Pad", "Pad003")
pad4.Profile = sketch5
pad4.Length = Q("0.05 in")

# Sketch on XY plane
sketch6 = body.newObject("Sketcher::SketchObject", "Sketch005")
sketch6.AttachmentSupport = (doc.getObject("XY_Plane"), [""])
sketch6.MapMode = "FlatFace"
sketch6.AttachmentOffset = App.Placement(App.Vector(0, 0, 0.25 * 25.4), App.Rotation())
sketch6.addGeometry([
    Part.LineSegment(App.Vector(-17, -40.6, 0), App.Vector(-17, -41.9, 0)),  # 0
    Part.LineSegment(App.Vector(-17, -41.9, 0), App.Vector(17, -41.9, 0)),  # 1
    Part.LineSegment(App.Vector(17, -41.9, 0), App.Vector(17, -40.6, 0)),  # 2
    Part.LineSegment(App.Vector(17, -40.6, 0), App.Vector(-17, -40.6, 0)),  # 3
    Part.LineSegment(App.Vector(17, -43.2, 0), App.Vector(-17, -43.2, 0)),  # 4
    Part.LineSegment(App.Vector(-17, -43.2, 0), App.Vector(-17, -44.5, 0)),  # 5
    Part.LineSegment(App.Vector(-17, -44.5, 0), App.Vector(17, -44.5, 0)),  # 6
    Part.LineSegment(App.Vector(17, -44.5, 0), App.Vector(17, -43.2, 0)),  # 7
    Part.LineSegment(App.Vector(-17, -45.7, 0), App.Vector(-17, -47, 0)),  # 8
    Part.LineSegment(App.Vector(-17, -47, 0), App.Vector(17, -47, 0)),  # 9
    Part.LineSegment(App.Vector(17, -47, 0), App.Vector(17, -45.7, 0)),  # 10
    Part.LineSegment(App.Vector(17, -45.7, 0), App.Vector(-17, -45.7, 0)),  # 11
    Part.LineSegment(App.Vector(-17, -48.3, 0), App.Vector(-17, -49.5, 0)),  # 12
    Part.LineSegment(App.Vector(-17, -49.5, 0), App.Vector(17, -49.5, 0)),  # 13
    Part.LineSegment(App.Vector(17, -49.5, 0), App.Vector(17, -48.3, 0)),  # 14
    Part.LineSegment(App.Vector(17, -48.3, 0), App.Vector(-17, -48.3, 0)),  # 15
    Part.LineSegment(App.Vector(-17, -50.8, 0), App.Vector(-17, -52.1, 0)),  # 16
    Part.LineSegment(App.Vector(-17, -52.1, 0), App.Vector(17, -52.1, 0)),  # 17
    Part.LineSegment(App.Vector(17, -52.1, 0), App.Vector(17, -50.8, 0)),  # 18
    Part.LineSegment(App.Vector(17, -50.8, 0), App.Vector(-17, -50.8, 0)),  # 19
    Part.LineSegment(App.Vector(-17, -53.3, 0), App.Vector(-17, -54.6, 0)),  # 20
    Part.LineSegment(App.Vector(-17, -54.6, 0), App.Vector(17, -54.6, 0)),  # 21
    Part.LineSegment(App.Vector(17, -54.6, 0), App.Vector(17, -53.3, 0)),  # 22
    Part.LineSegment(App.Vector(17, -53.3, 0), App.Vector(-17, -53.3, 0)),  # 23
], False)
sketch6.addConstraint([
    Sketcher.Constraint("Coincident", 0, 2, 1, 1),
    Sketcher.Constraint("Coincident", 1, 2, 2, 1),
    Sketcher.Constraint("Coincident", 2, 2, 3, 1),
    Sketcher.Constraint("Coincident", 3, 2, 0, 1),
    Sketcher.Constraint("Coincident", 4, 2, 5, 1),
    Sketcher.Constraint("Coincident", 5, 2, 6, 1),
    Sketcher.Constraint("Coincident", 6, 2, 7, 1),
    Sketcher.Constraint("Coincident", 7, 2, 4, 1),
    Sketcher.Constraint("Coincident", 8, 2, 9, 1),
    Sketcher.Constraint("Coincident", 9, 2, 10, 1),
    Sketcher.Constraint("Coincident", 10, 2, 11, 1),
    Sketcher.Constraint("Coincident", 11, 2, 8, 1),
    Sketcher.Constraint("Coincident", 12, 2, 13, 1),
    Sketcher.Constraint("Coincident", 13, 2, 14, 1),
    Sketcher.Constraint("Coincident", 14, 2, 15, 1),
    Sketcher.Constraint("Coincident", 15, 2, 12, 1),
    Sketcher.Constraint("Coincident", 16, 2, 17, 1),
    Sketcher.Constraint("Coincident", 17, 2, 18, 1),
    Sketcher.Constraint("Coincident", 18, 2, 19, 1),
    Sketcher.Constraint("Coincident", 19, 2, 16, 1),
    Sketcher.Constraint("Coincident", 20, 2, 21, 1),
    Sketcher.Constraint("Coincident", 21, 2, 22, 1),
    Sketcher.Constraint("Coincident", 22, 2, 23, 1),
    Sketcher.Constraint("Coincident", 23, 2, 20, 1),
    Sketcher.Constraint("Vertical", 0),
    Sketcher.Constraint("Horizontal", 1),
    Sketcher.Constraint("Vertical", 2),
    Sketcher.Constraint("Horizontal", 3),
    Sketcher.Constraint("Horizontal", 4),
    Sketcher.Constraint("Vertical", 5),
    Sketcher.Constraint("Horizontal", 6),
    Sketcher.Constraint("Vertical", 7),
    Sketcher.Constraint("Vertical", 8),
    Sketcher.Constraint("Horizontal", 9),
    Sketcher.Constraint("Vertical", 10),
    Sketcher.Constraint("Horizontal", 11),
    Sketcher.Constraint("Vertical", 12),
    Sketcher.Constraint("Horizontal", 13),
    Sketcher.Constraint("Vertical", 14),
    Sketcher.Constraint("Horizontal", 15),
    Sketcher.Constraint("Vertical", 16),
    Sketcher.Constraint("Horizontal", 17),
    Sketcher.Constraint("Vertical", 18),
    Sketcher.Constraint("Horizontal", 19),
    Sketcher.Constraint("Vertical", 20),
    Sketcher.Constraint("Horizontal", 21),
    Sketcher.Constraint("Vertical", 22),
    Sketcher.Constraint("Horizontal", 23),
    Sketcher.Constraint("Vertical", 3, 2, 4, 2),
    Sketcher.Constraint("Vertical", 2, 2, 6, 2),
    Sketcher.Constraint("Vertical", 5, 2, 8, 2),
    Sketcher.Constraint("Vertical", 7, 2, 9, 2),
    Sketcher.Constraint("Vertical", 11, 2, 12, 2),
    Sketcher.Constraint("Vertical", 10, 2, 13, 2),
    Sketcher.Constraint("Vertical", 15, 2, 16, 2),
    Sketcher.Constraint("Vertical", 14, 2, 17, 2),
    Sketcher.Constraint("Vertical", 19, 2, 20, 2),
    Sketcher.Constraint("Vertical", 18, 2, 21, 2),
    Sketcher.Constraint("Equal", 2, 5),
    Sketcher.Constraint("Equal", 7, 8),
    Sketcher.Constraint("Equal", 10, 12),
    Sketcher.Constraint("Equal", 14, 16),
    Sketcher.Constraint("Equal", 18, 20),
    Sketcher.Constraint("DistanceY", 18, 2, -1, 1, Q("2 in")),
    Sketcher.Constraint("DistanceX", 1, 1, 1, 2, Q("1.34 in")),
    Sketcher.Constraint("DistanceY", 0, 2, 0, 1, Q("0.05 in")),
    Sketcher.Constraint("DistanceY", 2, 2, -1, 1, Q("1.6 in")),
    Sketcher.Constraint("DistanceY", 4, 2, -1, 1, Q("1.7 in")),
    Sketcher.Constraint("DistanceY", 10, 2, -1, 1, Q("1.8 in")),
    Sketcher.Constraint("DistanceY", 14, 2, -1, 1, Q("1.9 in")),
    Sketcher.Constraint("DistanceY", 22, 2, -1, 1, Q("2.1 in")),
    Sketcher.Constraint("DistanceX", 0, 2, -1, 1, Q("0.67 in")),
])
pocket2 = body.newObject("PartDesign::Pocket", "Pocket001")
pocket2.Profile = sketch6
pocket2.Length = Q("0.1 in")

# Sketch on XZ plane
sketch7 = body.newObject("Sketcher::SketchObject", "Sketch006")
sketch7.AttachmentSupport = (doc.getObject("XZ_Plane"), [""])
sketch7.MapMode = "FlatFace"
sketch7.AttachmentOffset = App.Placement(App.Vector(0, 0, 1.5 * 25.4), App.Rotation())
sketch7.addGeometry([
    Part.LineSegment(App.Vector(-11, 53, 0), App.Vector(-11, 41, 0)),  # 0
    Part.LineSegment(App.Vector(-11, 41, 0), App.Vector(11, 41, 0)),  # 1
    Part.LineSegment(App.Vector(11, 41, 0), App.Vector(11, 53, 0)),  # 2
    Part.LineSegment(App.Vector(11, 53, 0), App.Vector(-11, 53, 0)),  # 3
    Part.LineSegment(App.Vector(11, 41, 0), App.Vector(-11, 41, 0)),  # 4
    Part.LineSegment(App.Vector(-11, 41, 0), App.Vector(-11, 53, 0)),  # 5
    Part.LineSegment(App.Vector(-11, 53, 0), App.Vector(11, 53, 0)),  # 6
    Part.LineSegment(App.Vector(11, 53, 0), App.Vector(11, 41, 0)),  # 7
], False)
sketch7.addConstraint([
    Sketcher.Constraint("Coincident", 0, 2, 1, 1),
    Sketcher.Constraint("Coincident", 1, 2, 2, 1),
    Sketcher.Constraint("Coincident", 2, 2, 3, 1),
    Sketcher.Constraint("Coincident", 3, 2, 0, 1),
    Sketcher.Constraint("Coincident", 4, 2, 5, 1),
    Sketcher.Constraint("Coincident", 5, 2, 6, 1),
    Sketcher.Constraint("Coincident", 6, 2, 7, 1),
    Sketcher.Constraint("Coincident", 7, 2, 4, 1),
    Sketcher.Constraint("Vertical", 0),
    Sketcher.Constraint("Horizontal", 1),
    Sketcher.Constraint("Vertical", 2),
    Sketcher.Constraint("Horizontal", 3),
    Sketcher.Constraint("Horizontal", 4),
    Sketcher.Constraint("Vertical", 5),
    Sketcher.Constraint("Horizontal", 6),
    Sketcher.Constraint("Vertical", 7),
    Sketcher.Constraint("DistanceX", 1, 1, 1, 2, Q("0.9 in")),
    Sketcher.Constraint("DistanceY", 0, 2, 0, 1, Q("0.5 in")),
    Sketcher.Constraint("DistanceX", 4, 2, 4, 1, Q("0.85 in")),
    Sketcher.Constraint("DistanceY", 5, 1, 5, 2, Q("0.45 in")),
    Sketcher.Constraint("DistanceX", 0, 2, -1, 1, Q("0.45 in")),
    Sketcher.Constraint("DistanceX", 4, 2, -1, 1, Q("0.425 in")),
    Sketcher.Constraint("DistanceY", 0, 2, 4, 2, Q("0.025 in")),
    Sketcher.Constraint("DistanceY", -1, 1, 0, 2, 40.597837),
])
pad5 = body.newObject("PartDesign::Pad", "Pad004")
pad5.Profile = sketch7
pad5.Length = Q("0.03 in")

doc.recompute()
